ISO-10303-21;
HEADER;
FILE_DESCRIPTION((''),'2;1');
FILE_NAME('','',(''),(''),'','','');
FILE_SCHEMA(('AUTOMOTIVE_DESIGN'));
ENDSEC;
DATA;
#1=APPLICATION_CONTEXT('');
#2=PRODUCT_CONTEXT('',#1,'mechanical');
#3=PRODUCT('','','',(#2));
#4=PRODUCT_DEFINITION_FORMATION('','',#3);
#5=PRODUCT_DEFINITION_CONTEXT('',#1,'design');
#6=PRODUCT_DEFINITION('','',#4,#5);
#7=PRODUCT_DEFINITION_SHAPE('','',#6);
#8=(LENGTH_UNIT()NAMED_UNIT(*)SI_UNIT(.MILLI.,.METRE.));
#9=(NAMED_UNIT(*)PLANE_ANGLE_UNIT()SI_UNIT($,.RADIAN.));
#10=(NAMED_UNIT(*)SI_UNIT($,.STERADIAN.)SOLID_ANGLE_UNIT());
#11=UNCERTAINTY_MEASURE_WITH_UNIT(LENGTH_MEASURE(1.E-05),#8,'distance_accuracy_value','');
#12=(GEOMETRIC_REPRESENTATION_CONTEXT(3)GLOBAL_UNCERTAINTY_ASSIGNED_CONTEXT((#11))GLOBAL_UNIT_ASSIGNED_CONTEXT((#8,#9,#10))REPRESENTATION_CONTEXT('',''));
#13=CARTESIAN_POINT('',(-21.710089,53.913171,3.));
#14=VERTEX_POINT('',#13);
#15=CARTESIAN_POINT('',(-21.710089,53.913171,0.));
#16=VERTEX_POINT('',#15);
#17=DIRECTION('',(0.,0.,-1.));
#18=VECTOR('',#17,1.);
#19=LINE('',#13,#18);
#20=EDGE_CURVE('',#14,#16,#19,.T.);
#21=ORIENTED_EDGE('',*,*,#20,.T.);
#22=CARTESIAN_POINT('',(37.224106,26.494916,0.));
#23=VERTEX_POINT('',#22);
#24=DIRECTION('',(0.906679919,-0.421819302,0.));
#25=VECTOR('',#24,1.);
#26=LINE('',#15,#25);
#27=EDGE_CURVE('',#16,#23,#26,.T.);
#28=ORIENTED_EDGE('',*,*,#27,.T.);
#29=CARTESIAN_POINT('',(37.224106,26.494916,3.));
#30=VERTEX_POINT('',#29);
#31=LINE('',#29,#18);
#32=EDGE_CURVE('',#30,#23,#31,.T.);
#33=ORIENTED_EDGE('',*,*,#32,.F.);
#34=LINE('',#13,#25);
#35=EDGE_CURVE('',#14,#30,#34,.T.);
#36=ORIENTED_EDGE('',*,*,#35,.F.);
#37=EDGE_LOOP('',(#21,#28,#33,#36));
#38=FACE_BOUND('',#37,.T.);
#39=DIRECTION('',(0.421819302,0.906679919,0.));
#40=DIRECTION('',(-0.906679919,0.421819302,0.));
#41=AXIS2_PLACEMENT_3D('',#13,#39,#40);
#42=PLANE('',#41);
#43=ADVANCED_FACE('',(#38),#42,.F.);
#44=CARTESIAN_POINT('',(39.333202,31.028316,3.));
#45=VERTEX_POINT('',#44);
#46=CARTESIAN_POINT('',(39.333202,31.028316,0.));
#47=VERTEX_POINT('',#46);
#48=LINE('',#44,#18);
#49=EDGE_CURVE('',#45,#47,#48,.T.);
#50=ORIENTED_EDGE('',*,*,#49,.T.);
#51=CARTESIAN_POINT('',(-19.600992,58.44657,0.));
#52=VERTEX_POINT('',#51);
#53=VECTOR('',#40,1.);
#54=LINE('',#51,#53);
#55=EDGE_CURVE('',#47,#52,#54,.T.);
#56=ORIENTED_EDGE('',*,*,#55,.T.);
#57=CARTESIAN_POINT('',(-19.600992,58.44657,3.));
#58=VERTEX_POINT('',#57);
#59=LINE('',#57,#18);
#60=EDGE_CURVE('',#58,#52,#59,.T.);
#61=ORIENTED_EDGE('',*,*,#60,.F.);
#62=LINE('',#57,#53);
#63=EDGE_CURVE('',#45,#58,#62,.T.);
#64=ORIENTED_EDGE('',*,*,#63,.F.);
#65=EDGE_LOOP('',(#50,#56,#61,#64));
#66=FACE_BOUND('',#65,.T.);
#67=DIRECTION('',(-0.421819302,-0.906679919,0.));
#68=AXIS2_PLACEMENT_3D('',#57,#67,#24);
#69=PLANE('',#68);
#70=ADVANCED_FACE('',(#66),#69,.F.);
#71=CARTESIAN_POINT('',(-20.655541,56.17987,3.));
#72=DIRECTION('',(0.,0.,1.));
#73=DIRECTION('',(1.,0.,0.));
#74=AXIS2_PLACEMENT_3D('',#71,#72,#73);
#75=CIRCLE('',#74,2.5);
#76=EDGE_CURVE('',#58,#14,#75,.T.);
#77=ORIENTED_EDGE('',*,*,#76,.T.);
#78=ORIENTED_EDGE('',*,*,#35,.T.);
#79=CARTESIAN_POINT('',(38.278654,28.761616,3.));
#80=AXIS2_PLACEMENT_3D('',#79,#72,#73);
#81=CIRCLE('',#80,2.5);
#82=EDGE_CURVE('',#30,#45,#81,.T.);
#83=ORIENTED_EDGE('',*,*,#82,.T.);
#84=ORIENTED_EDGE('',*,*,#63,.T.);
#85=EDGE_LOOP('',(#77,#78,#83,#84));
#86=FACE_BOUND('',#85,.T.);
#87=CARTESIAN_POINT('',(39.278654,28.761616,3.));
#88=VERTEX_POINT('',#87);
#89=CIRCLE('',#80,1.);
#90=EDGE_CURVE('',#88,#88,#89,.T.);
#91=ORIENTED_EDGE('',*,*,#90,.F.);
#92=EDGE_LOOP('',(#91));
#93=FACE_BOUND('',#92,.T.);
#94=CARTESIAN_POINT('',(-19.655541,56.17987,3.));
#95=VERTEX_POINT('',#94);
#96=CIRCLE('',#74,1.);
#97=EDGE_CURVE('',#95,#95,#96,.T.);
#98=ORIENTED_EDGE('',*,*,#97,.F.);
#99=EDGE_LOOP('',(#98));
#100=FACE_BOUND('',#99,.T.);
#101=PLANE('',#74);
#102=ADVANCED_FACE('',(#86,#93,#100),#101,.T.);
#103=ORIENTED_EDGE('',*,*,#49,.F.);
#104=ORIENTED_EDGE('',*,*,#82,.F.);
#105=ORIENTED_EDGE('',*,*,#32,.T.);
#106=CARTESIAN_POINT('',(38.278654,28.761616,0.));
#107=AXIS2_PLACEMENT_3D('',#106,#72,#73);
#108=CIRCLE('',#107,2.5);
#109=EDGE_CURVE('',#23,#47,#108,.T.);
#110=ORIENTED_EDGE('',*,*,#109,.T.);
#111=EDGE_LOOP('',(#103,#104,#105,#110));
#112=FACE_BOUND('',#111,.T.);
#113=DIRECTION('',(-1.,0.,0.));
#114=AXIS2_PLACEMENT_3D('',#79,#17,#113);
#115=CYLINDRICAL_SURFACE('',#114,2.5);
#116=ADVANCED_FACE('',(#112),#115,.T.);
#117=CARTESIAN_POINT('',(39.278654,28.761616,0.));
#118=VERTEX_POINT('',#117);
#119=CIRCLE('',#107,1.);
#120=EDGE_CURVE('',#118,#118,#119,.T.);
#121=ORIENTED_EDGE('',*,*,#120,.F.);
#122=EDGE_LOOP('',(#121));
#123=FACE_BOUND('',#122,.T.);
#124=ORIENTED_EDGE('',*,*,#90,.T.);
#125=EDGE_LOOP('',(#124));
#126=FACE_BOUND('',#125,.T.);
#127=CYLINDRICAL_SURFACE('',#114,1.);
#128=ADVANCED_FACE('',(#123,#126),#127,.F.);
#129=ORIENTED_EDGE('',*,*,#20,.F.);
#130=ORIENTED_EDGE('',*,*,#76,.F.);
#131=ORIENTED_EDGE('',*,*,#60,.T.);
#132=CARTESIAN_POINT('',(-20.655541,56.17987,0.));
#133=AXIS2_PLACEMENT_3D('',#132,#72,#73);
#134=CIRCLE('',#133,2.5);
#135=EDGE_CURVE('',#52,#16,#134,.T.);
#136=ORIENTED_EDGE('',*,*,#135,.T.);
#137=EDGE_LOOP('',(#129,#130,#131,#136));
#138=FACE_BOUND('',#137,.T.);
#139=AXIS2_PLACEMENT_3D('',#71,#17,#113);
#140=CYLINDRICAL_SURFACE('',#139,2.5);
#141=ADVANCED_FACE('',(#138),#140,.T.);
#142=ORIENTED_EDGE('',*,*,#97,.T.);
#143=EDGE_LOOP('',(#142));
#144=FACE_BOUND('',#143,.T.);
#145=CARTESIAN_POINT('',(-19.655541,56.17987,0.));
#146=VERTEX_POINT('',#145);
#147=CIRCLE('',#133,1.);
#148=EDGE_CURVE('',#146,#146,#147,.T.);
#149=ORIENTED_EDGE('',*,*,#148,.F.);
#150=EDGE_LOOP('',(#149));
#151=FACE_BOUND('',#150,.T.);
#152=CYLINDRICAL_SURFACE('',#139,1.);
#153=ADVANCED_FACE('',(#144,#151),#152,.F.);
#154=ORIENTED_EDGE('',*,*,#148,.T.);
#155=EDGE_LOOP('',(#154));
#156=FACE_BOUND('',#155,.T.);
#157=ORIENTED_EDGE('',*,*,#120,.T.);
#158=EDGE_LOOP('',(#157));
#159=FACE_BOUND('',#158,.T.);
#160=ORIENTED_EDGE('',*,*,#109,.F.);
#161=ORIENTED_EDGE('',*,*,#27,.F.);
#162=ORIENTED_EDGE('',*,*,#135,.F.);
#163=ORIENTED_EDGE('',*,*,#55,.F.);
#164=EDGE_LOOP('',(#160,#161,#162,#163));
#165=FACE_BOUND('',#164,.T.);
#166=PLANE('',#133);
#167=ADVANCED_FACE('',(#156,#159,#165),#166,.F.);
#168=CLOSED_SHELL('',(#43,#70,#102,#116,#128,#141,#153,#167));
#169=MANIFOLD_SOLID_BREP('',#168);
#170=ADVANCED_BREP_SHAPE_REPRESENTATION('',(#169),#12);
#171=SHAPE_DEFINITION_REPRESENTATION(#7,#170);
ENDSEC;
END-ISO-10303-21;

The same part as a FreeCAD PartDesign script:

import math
import FreeCAD as App
import Part
import Sketcher
from FreeCAD import Vector

doc = App.newDocument("Part")
body = doc.addObject("PartDesign::Body", "Body")

# Sketch on XY plane
sketch1 = body.newObject("Sketcher::SketchObject", "Sketch")
sketch1.AttachmentSupport = (doc.getObject("XY_Plane"), [""])
sketch1.MapMode = "FlatFace"
sketch1.addGeometry([
    Part.LineSegment(Vector(39.333202, 31.028316, 0), Vector(-19.600992, 58.44657, 0)),  # 0
    Part.ArcOfCircle(Part.Circle(Vector(-20.655541, 56.17987, 0), Vector(0, 0, 1), 2.5), math.radians(65.050499), math.radians(245.050499)),  # 1
    Part.LineSegment(Vector(-21.710089, 53.913171, 0), Vector(37.224106, 26.494916, 0)),  # 2
    Part.ArcOfCircle(Part.Circle(Vector(38.278654, 28.761616, 0), Vector(0, 0, 1), 2.5), math.radians(-114.949501), math.radians(65.050499)),  # 3
    Part.Circle(Vector(38.278654, 28.761616, 0), Vector(0, 0, 1), 1),  # 4
    Part.Circle(Vector(-20.655541, 56.17987, 0), Vector(0, 0, 1), 1),  # 5
], False)
sketch1.addConstraint([
    Sketcher.Constraint("Tangent", 0, 2, 1, 1),
    Sketcher.Constraint("Tangent", 1, 2, 2, 1),
    Sketcher.Constraint("Tangent", 2, 2, 3, 1),
    Sketcher.Constraint("Tangent", 3, 2, 0, 1),
    Sketcher.Constraint("Coincident", 4, 3, 3, 3),
    Sketcher.Constraint("Coincident", 5, 3, 1, 3),
    Sketcher.Constraint("Equal", 1, 3),
    Sketcher.Constraint("Equal", 4, 5),
    Sketcher.Constraint("Diameter", 4, 2.0),
    Sketcher.Constraint("Radius", 1, 2.5),
    Sketcher.Constraint("Distance", 0, 65.0),
    Sketcher.Constraint("DistanceY", 5, 3, 0, 2, 2.2667),
    Sketcher.Constraint("DistanceX", 1, 3, -1, 1, 20.655541),
    Sketcher.Constraint("DistanceY", -1, 1, 1, 3, 56.17987),
])
pad1 = body.newObject("PartDesign::Pad", "Pad")
pad1.Profile = sketch1
pad1.Length = 3

doc.recompute()
